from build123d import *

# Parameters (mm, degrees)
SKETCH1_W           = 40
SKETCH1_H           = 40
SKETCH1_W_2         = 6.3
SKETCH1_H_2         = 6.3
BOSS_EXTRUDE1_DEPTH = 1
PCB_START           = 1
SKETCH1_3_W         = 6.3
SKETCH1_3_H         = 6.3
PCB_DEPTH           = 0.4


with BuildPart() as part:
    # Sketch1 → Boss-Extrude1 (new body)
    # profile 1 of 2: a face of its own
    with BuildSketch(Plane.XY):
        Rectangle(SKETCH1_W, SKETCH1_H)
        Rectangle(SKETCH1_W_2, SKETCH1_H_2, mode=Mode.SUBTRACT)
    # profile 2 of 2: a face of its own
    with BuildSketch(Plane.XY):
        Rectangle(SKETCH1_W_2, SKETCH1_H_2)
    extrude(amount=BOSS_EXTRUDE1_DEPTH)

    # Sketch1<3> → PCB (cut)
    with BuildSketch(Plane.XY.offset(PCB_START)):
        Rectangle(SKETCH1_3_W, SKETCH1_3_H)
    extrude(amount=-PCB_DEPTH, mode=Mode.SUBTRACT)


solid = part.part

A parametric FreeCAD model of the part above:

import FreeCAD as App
import Part
import Sketcher
Q = App.Units.Quantity

doc = App.newDocument("Part")
body = doc.addObject("PartDesign::Body", "Body")

sketch1 = body.newObject("Sketcher::SketchObject", "Sketch")
sketch1.AttachmentSupport = (doc.getObject("XY_Plane"), [""])
sketch1.MapMode = "FlatFace"
sketch1.addGeometry(Part.LineSegment(App.Vector(-20, 20, 0), App.Vector(-20, -20, 0)), False)
sketch1.addGeometry(Part.LineSegment(App.Vector(-20, -20, 0), App.Vector(20, -20, 0)), False)
sketch1.addGeometry(Part.LineSegment(App.Vector(20, -20, 0), App.Vector(20, 20, 0)), False)
sketch1.addGeometry(Part.LineSegment(App.Vector(20, 20, 0), App.Vector(-20, 20, 0)), False)
sketch1.addConstraint(Sketcher.Constraint("Coincident", 0, 2, 1, 1))
sketch1.addConstraint(Sketcher.Constraint("Coincident", 1, 2, 2, 1))
sketch1.addConstraint(Sketcher.Constraint("Coincident", 2, 2, 3, 1))
sketch1.addConstraint(Sketcher.Constraint("Coincident", 3, 2, 0, 1))
sketch1.addConstraint(Sketcher.Constraint("Vertical", 0))
sketch1.addConstraint(Sketcher.Constraint("Horizontal", 1))
sketch1.addConstraint(Sketcher.Constraint("Vertical", 2))
sketch1.addConstraint(Sketcher.Constraint("Horizontal", 3))
sketch1.addConstraint(Sketcher.Constraint("Symmetric", 0, 2, 2, 2, -1, 1))
sketch1.addConstraint(Sketcher.Constraint("Equal", 3, 0))
sketch1.addConstraint(Sketcher.Constraint("DistanceX", 1, 1, 1, 2, Q("40 mm")))
pad1 = body.newObject("PartDesign::Pad", "Pad")
pad1.Profile = sketch1
pad1.Length = 1

sketch2 = body.newObject("Sketcher::SketchObject", "Sketch001")
sketch2.AttachmentSupport = (doc.getObject("XY_Plane"), [""])
sketch2.MapMode = "FlatFace"
sketch2.AttachmentOffset = App.Placement(App.Vector(0, 0, 1), App.Rotation())
sketch2.addGeometry(Part.LineSegment(App.Vector(-3, 3, 0), App.Vector(-3, -3, 0)), False)
sketch2.addGeometry(Part.LineSegment(App.Vector(-3, -3, 0), App.Vector(3, -3, 0)), False)
sketch2.addGeometry(Part.LineSegment(App.Vector(3, -3, 0), App.Vector(3, 3, 0)), False)
sketch2.addGeometry(Part.LineSegment(App.Vector(3, 3, 0), App.Vector(-3, 3, 0)), False)
sketch2.addConstraint(Sketcher.Constraint("Coincident", 0, 2, 1, 1))
sketch2.addConstraint(Sketcher.Constraint("Coincident", 1, 2, 2, 1))
sketch2.addConstraint(Sketcher.Constraint("Coincident", 2, 2, 3, 1))
sketch2.addConstraint(Sketcher.Constraint("Coincident", 3, 2, 0, 1))
sketch2.addConstraint(Sketcher.Constraint("Vertical", 0))
sketch2.addConstraint(Sketcher.Constraint("Horizontal", 1))
sketch2.addConstraint(Sketcher.Constraint("Vertical", 2))
sketch2.addConstraint(Sketcher.Constraint("Horizontal", 3))
sketch2.addConstraint(Sketcher.Constraint("Symmetric", 0, 2, 2, 2, -1, 1))
sketch2.addConstraint(Sketcher.Constraint("Equal", 3, 0))
sketch2.addConstraint(Sketcher.Constraint("DistanceX", 1, 1, 1, 2, Q("6.3 mm")))
pocket1 = body.newObject("PartDesign::Pocket", "Pocket")
pocket1.Profile = sketch2
pocket1.Length = 0.4

doc.recompute()
